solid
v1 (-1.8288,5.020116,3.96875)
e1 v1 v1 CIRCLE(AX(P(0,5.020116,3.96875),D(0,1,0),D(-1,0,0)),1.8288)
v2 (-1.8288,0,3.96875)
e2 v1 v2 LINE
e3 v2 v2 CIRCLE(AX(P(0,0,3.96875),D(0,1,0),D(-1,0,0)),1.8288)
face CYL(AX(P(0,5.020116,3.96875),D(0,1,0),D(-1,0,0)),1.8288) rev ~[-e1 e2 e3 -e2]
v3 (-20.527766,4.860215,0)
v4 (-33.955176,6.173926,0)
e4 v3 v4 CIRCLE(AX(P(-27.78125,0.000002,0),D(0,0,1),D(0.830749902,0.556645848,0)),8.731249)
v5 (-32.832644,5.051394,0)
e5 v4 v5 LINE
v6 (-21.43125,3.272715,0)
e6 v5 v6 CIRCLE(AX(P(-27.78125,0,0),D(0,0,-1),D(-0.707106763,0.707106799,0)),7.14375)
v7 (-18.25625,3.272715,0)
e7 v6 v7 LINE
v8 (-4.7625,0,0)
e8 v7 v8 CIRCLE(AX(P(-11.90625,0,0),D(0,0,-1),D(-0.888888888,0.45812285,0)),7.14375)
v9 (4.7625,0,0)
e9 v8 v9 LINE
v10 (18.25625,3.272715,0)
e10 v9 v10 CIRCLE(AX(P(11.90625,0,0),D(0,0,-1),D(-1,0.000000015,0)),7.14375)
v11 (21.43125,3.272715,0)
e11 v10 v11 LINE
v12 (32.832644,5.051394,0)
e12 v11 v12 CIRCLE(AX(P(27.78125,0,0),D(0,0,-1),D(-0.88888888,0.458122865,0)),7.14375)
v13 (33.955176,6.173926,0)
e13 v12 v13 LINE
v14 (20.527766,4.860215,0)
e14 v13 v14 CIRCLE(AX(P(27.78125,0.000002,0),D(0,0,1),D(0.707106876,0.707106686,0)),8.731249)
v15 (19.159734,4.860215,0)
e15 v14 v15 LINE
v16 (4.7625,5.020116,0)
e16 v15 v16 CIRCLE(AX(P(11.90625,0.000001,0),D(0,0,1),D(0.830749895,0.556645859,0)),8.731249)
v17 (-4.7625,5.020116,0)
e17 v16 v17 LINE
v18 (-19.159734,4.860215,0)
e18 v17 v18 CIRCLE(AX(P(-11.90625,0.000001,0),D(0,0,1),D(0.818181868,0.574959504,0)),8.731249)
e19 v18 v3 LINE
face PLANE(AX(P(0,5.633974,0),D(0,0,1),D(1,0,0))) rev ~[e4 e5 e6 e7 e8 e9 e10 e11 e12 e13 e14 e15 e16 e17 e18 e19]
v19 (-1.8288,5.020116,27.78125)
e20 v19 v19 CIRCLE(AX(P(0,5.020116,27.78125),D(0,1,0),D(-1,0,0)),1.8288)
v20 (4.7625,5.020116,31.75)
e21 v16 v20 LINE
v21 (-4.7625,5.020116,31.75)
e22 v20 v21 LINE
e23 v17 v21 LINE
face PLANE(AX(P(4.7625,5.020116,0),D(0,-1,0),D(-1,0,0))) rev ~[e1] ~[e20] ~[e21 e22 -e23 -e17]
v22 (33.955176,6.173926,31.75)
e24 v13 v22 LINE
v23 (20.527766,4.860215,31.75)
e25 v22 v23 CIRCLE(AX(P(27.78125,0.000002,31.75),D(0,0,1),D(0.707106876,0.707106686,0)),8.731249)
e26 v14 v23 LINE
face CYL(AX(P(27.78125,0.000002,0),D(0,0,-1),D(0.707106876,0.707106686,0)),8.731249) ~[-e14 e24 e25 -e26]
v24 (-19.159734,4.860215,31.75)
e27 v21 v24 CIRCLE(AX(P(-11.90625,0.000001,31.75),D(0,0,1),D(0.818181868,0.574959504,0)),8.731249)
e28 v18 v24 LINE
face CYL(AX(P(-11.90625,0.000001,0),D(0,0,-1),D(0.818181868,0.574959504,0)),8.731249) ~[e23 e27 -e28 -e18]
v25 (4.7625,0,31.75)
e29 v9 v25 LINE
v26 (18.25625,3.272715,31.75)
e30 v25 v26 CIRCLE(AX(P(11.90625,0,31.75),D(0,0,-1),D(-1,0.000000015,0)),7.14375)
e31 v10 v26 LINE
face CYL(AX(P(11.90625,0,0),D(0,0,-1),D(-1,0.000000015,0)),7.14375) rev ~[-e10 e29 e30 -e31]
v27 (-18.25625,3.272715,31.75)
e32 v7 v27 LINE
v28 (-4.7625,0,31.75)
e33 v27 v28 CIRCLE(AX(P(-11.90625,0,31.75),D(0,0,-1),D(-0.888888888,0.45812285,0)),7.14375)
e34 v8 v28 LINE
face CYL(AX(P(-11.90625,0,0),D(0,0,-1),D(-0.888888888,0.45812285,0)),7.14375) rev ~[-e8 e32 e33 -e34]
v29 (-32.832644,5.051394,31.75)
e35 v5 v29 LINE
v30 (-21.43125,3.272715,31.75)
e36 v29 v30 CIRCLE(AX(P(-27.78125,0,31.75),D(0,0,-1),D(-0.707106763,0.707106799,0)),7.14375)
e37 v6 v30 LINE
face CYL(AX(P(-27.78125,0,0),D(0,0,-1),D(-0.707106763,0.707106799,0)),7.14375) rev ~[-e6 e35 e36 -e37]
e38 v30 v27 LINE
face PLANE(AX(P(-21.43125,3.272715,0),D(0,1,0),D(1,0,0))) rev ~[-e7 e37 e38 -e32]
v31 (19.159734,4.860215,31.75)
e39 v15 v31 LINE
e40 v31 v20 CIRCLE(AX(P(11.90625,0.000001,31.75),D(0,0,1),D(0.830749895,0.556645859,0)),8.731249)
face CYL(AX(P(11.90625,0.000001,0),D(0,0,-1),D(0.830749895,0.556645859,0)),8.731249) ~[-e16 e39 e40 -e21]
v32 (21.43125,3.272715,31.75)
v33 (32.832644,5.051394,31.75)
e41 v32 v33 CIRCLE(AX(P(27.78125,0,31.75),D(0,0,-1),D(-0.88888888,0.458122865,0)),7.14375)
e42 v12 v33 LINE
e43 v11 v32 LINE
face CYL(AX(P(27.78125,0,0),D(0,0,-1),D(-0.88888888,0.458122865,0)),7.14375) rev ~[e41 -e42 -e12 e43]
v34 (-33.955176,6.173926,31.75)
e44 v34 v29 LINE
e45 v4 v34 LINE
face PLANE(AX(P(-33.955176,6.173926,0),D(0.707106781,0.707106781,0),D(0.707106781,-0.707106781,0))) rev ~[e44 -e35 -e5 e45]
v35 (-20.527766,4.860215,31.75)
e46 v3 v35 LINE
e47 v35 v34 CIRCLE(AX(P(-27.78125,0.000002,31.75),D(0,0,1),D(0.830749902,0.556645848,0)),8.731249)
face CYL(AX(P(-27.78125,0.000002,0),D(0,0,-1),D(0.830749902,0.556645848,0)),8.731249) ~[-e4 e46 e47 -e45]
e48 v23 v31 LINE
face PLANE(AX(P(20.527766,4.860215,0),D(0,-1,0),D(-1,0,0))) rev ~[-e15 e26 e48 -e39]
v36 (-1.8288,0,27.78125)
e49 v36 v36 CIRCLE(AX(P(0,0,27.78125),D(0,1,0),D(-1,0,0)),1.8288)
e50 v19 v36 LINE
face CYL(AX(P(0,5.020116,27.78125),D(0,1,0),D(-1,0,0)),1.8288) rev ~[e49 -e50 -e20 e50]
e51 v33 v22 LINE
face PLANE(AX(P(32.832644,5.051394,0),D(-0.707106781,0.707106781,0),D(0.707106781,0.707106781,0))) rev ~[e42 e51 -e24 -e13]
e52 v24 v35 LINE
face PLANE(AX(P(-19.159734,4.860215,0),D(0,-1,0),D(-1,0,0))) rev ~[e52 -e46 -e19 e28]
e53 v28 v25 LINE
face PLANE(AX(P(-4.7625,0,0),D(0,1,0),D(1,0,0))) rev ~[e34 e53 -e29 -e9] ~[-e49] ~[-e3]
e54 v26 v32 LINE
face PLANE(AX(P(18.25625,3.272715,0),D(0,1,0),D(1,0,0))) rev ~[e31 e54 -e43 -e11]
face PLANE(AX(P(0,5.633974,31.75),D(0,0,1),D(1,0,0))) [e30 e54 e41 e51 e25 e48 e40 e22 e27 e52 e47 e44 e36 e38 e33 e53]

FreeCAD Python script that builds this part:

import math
import FreeCAD as App
import Part
import Sketcher
from FreeCAD import Vector
Q = App.Units.Quantity

doc = App.newDocument("Part")
body = doc.addObject("PartDesign::Body", "Body")

sketch1 = body.newObject("Sketcher::SketchObject", "Sketch")
sketch1.AttachmentSupport = (doc.getObject("XY_Plane"), [""])
sketch1.MapMode = "FlatFace"
sketch1.addGeometry(Part.ArcOfCircle(Part.Circle(Vector(-11.9, 0, 0), Vector(0, 0, 1), 7.1), math.radians(0), math.radians(153)), False)
sketch1.addGeometry(Part.LineSegment(Vector(-4.8, 0, 0), Vector(4.8, 0, 0)), False)
sketch1.addGeometry(Part.ArcOfCircle(Part.Circle(Vector(11.9, 0, 0), Vector(0, 0, 1), 7.1), math.radians(27), math.radians(180)), False)
sketch1.addGeometry(Part.LineSegment(Vector(18.3, 3.3, 0), Vector(21.4, 3.3, 0)), False)
sketch1.addGeometry(Part.ArcOfCircle(Part.Circle(Vector(27.8, 0, 0), Vector(0, 0, 1), 7.1), math.radians(45), math.radians(153)), False)
sketch1.addGeometry(Part.LineSegment(Vector(32.8, 5.1, 0), Vector(34, 6.2, 0)), False)
sketch1.addGeometry(Part.ArcOfCircle(Part.Circle(Vector(27.8, 0, 0), Vector(0, 0, 1), 8.7), math.radians(45), math.radians(146)), False)
sketch1.addGeometry(Part.LineSegment(Vector(20.5, 4.9, 0), Vector(19.2, 4.9, 0)), False)
sketch1.addGeometry(Part.ArcOfCircle(Part.Circle(Vector(11.9, 0, 0), Vector(0, 0, 1), 8.7), math.radians(34), math.radians(145)), False)
sketch1.addGeometry(Part.LineSegment(Vector(4.8, 5, 0), Vector(-4.8, 5, 0)), False)
sketch1.addGeometry(Part.ArcOfCircle(Part.Circle(Vector(-11.9, 0, 0), Vector(0, 0, 1), 8.7), math.radians(35), math.radians(146)), False)
sketch1.addGeometry(Part.LineSegment(Vector(-19.2, 4.9, 0), Vector(-20.5, 4.9, 0)), False)
sketch1.addGeometry(Part.ArcOfCircle(Part.Circle(Vector(-27.8, 0, 0), Vector(0, 0, 1), 8.7), math.radians(34), math.radians(135)), False)
sketch1.addGeometry(Part.LineSegment(Vector(-34, 6.2, 0), Vector(-32.8, 5.1, 0)), False)
sketch1.addGeometry(Part.ArcOfCircle(Part.Circle(Vector(-27.8, 0, 0), Vector(0, 0, 1), 7.1), math.radians(27), math.radians(135)), False)
sketch1.addGeometry(Part.LineSegment(Vector(-21.4, 3.3, 0), Vector(-18.3, 3.3, 0)), False)
sketch1.addConstraint(Sketcher.Constraint("Coincident", 0, 1, 1, 1))
sketch1.addConstraint(Sketcher.Constraint("Coincident", 1, 2, 2, 2))
sketch1.addConstraint(Sketcher.Constraint("Coincident", 2, 1, 3, 1))
sketch1.addConstraint(Sketcher.Constraint("Coincident", 3, 2, 4, 2))
sketch1.addConstraint(Sketcher.Constraint("Coincident", 4, 1, 5, 1))
sketch1.addConstraint(Sketcher.Constraint("Coincident", 5, 2, 6, 1))
sketch1.addConstraint(Sketcher.Constraint("Coincident", 6, 2, 7, 1))
sketch1.addConstraint(Sketcher.Constraint("Coincident", 7, 2, 8, 1))
sketch1.addConstraint(Sketcher.Constraint("Coincident", 8, 2, 9, 1))
sketch1.addConstraint(Sketcher.Constraint("Coincident", 9, 2, 10, 1))
sketch1.addConstraint(Sketcher.Constraint("Coincident", 10, 2, 11, 1))
sketch1.addConstraint(Sketcher.Constraint("Coincident", 11, 2, 12, 1))
sketch1.addConstraint(Sketcher.Constraint("Coincident", 12, 2, 13, 1))
sketch1.addConstraint(Sketcher.Constraint("Coincident", 13, 2, 14, 2))
sketch1.addConstraint(Sketcher.Constraint("Coincident", 14, 1, 15, 1))
sketch1.addConstraint(Sketcher.Constraint("Coincident", 15, 2, 0, 2))
sketch1.addConstraint(Sketcher.Constraint("Horizontal", 1))
sketch1.addConstraint(Sketcher.Constraint("Horizontal", 3))
sketch1.addConstraint(Sketcher.Constraint("Horizontal", 7))
sketch1.addConstraint(Sketcher.Constraint("Horizontal", 9))
sketch1.addConstraint(Sketcher.Constraint("Horizontal", 11))
sketch1.addConstraint(Sketcher.Constraint("Horizontal", 15))
sketch1.addConstraint(Sketcher.Constraint("Coincident", 6, 3, 4, 3))
sketch1.addConstraint(Sketcher.Constraint("Coincident", 8, 3, 2, 3))
sketch1.addConstraint(Sketcher.Constraint("Coincident", 10, 3, 0, 3))
sketch1.addConstraint(Sketcher.Constraint("Coincident", 14, 3, 12, 3))
sketch1.addConstraint(Sketcher.Constraint("Equal", 0, 2))
sketch1.addConstraint(Sketcher.Constraint("Equal", 2, 4))
sketch1.addConstraint(Sketcher.Constraint("Equal", 6, 8))
sketch1.addConstraint(Sketcher.Constraint("Equal", 8, 10))
sketch1.addConstraint(Sketcher.Constraint("Equal", 10, 12))
sketch1.addConstraint(Sketcher.Constraint("Equal", 4, 14))
sketch1.addConstraint(Sketcher.Constraint("Symmetric", 0, 3, 2, 3, -1, 1))
sketch1.addConstraint(Sketcher.Constraint("Symmetric", 4, 3, 12, 3, -1, 1))
sketch1.addConstraint(Sketcher.Constraint("Symmetric", 7, 2, 10, 2, -2))
sketch1.addConstraint(Sketcher.Constraint("Symmetric", 5, 2, 12, 2, -2))
sketch1.addConstraint(Sketcher.Constraint("PointOnObject", 0, 1, -1))
sketch1.addConstraint(Sketcher.Constraint("Perpendicular", 5, 13))
sketch1.addConstraint(Sketcher.Constraint("Horizontal", 4, 1, 13, 2))
sketch1.addConstraint(Sketcher.Constraint("Horizontal", 3, 2, 14, 1))
sketch1.addConstraint(Sketcher.Constraint("Vertical", 1, 2, 8, 2))
sketch1.addConstraint(Sketcher.Constraint("Radius", 0, Q("0.28125 in")))
sketch1.addConstraint(Sketcher.Constraint("Radius", 6, Q("0.3437499 in")))
sketch1.addConstraint(Sketcher.Constraint("DistanceX", 1, 1, 1, 2, Q("0.375 in")))
sketch1.addConstraint(Sketcher.Constraint("DistanceX", 3, 1, 3, 2, Q("0.125 in")))
sketch1.addConstraint(Sketcher.Constraint("DistanceX", 8, 3, 2, 1, Q("0.25 in")))
sketch1.addConstraint(Sketcher.Constraint("DistanceY", 3, 2, 6, 2, Q("0.0625 in")))
sketch1.addConstraint(Sketcher.Constraint("DistanceY", 3, 2, 4, 1, 1.778679))
pad1 = body.newObject("PartDesign::Pad", "Pad")
pad1.Profile = sketch1
pad1.Length = Q("1.25 in")

sketch2 = body.newObject("Sketcher::SketchObject", "Sketch001")
sketch2.AttachmentSupport = (doc.getObject("XZ_Plane"), [""])
sketch2.MapMode = "FlatFace"
sketch2.AttachmentOffset = App.Placement(Vector(0, 0, -5.020116), App.Rotation())
sketch2.addGeometry(Part.Circle(Vector(0, 4, 0), Vector(0, 0, 1), 1.8), False)
sketch2.addGeometry(Part.Circle(Vector(0, 27.8, 0), Vector(0, 0, 1), 1.8), False)
sketch2.addConstraint(Sketcher.Constraint("Equal", 0, 1))
sketch2.addConstraint(Sketcher.Constraint("PointOnObject", 0, 3, -2))
sketch2.addConstraint(Sketcher.Constraint("PointOnObject", 1, 3, -2))
sketch2.addConstraint(Sketcher.Constraint("Diameter", 0, Q("0.144 in")))
sketch2.addConstraint(Sketcher.Constraint("DistanceY", -1, 1, 0, 3, Q("0.15625 in")))
sketch2.addConstraint(Sketcher.Constraint("DistanceY", -1, 1, 1, 3, Q("1.09375 in")))
pocket1 = body.newObject("PartDesign::Pocket", "Pocket")
pocket1.Profile = sketch2
pocket1.Type = "ThroughAll"
pocket1.Reversed = True

doc.recompute()
